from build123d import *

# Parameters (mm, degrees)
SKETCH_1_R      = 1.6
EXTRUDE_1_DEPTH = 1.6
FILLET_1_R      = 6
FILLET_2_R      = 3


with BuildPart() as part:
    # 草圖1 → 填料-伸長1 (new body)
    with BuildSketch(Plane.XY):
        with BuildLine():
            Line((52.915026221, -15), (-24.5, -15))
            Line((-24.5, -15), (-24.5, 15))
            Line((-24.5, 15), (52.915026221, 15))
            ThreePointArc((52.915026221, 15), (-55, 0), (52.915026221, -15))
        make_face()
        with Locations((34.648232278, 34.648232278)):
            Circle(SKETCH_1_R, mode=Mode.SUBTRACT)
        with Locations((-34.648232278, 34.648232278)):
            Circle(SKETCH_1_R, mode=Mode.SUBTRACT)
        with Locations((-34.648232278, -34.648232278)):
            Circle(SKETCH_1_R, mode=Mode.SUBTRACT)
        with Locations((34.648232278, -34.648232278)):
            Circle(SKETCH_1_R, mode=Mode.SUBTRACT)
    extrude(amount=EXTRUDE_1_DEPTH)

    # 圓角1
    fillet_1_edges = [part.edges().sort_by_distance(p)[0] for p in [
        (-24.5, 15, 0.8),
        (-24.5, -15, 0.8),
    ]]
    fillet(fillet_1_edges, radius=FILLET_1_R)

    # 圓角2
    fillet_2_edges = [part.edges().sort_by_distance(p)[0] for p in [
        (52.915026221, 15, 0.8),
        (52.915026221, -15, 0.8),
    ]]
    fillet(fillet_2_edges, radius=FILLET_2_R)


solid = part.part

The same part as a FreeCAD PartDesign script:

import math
import FreeCAD as App
import Part
import Sketcher

V = App.Vector
Q = App.Units.Quantity


def edges_at(feature, points):
    """Names of the edges that pass closest to the given points."""
    edges = feature.Shape.Edges
    near = lambda p: min(range(len(edges)), key=lambda i: edges[i].distToShape(Part.Vertex(*p))[0])
    return sorted({f"Edge{near(p) + 1}" for p in points})

doc = App.newDocument("Part")
body = doc.addObject("PartDesign::Body", "Body")

# Sketch on XY plane
sketch1 = body.newObject("Sketcher::SketchObject", "Sketch")
sketch1.AttachmentSupport = (doc.getObject("XY_Plane"), [""])
sketch1.MapMode = "FlatFace"
sketch1.addGeometry([
    Part.LineSegment(V(52.915026, -15, 0), V(-24.5, -15, 0)),  # 0
    Part.LineSegment(V(-24.5, -15, 0), V(-24.5, 15, 0)),  # 1
    Part.LineSegment(V(-24.5, 15, 0), V(52.915026, 15, 0)),  # 2
    Part.ArcOfCircle(Part.Circle(V(0, 0, 0), V(0, 0, 1), 55), math.radians(15.82662), math.radians(344.17338)),  # 3
    Part.Circle(V(-34.648232, -34.648232, 0), V(0, 0, 1), 1.6),  # 4
    Part.Circle(V(34.648232, -34.648232, 0), V(0, 0, 1), 1.6),  # 5
    Part.Circle(V(-34.648232, 34.648232, 0), V(0, 0, 1), 1.6),  # 6
    Part.Circle(V(34.648232, 34.648232, 0), V(0, 0, 1), 1.6),  # 7
], False)
sketch1.addConstraint([
    Sketcher.Constraint("Coincident", 0, 2, 1, 1),
    Sketcher.Constraint("Coincident", 1, 2, 2, 1),
    Sketcher.Constraint("Coincident", 2, 2, 3, 1),
    Sketcher.Constraint("Coincident", 3, 2, 0, 1),
    Sketcher.Constraint("Horizontal", 0),
    Sketcher.Constraint("Vertical", 1),
    Sketcher.Constraint("Horizontal", 2),
    Sketcher.Constraint("Coincident", 3, 3, -1, 1),
    Sketcher.Constraint("Equal", 4, 5),
    Sketcher.Constraint("Equal", 5, 6),
    Sketcher.Constraint("Equal", 6, 7),
    Sketcher.Constraint("Symmetric", 5, 3, 6, 3, -1, 1),
    Sketcher.Constraint("Symmetric", 4, 3, 7, 3, -1, 1),
    Sketcher.Constraint("Symmetric", 4, 3, 5, 3, -2),
    Sketcher.Constraint("Vertical", 2, 2, 3, 2),
    Sketcher.Constraint("Radius", 3, Q("55 mm")),
    Sketcher.Constraint("Diameter", 4, Q("3.2 mm")),
    Sketcher.Constraint("DistanceY", 1, 1, 1, 2, Q("30 mm")),
    Sketcher.Constraint("DistanceX", 0, 2, -1, 1, Q("24.5 mm")),
    Sketcher.Constraint("DistanceX", 4, 3, -1, 1, Q("34.648232 mm")),
    Sketcher.Constraint("DistanceY", 4, 3, -1, 1, Q("34.648232 mm")),
])
pad1 = body.newObject("PartDesign::Pad", "Pad")
pad1.Profile = sketch1
pad1.Length = 1.6
doc.recompute()

fillet = body.newObject("PartDesign::Fillet", "Fillet")
fillet.Base = (pad1, edges_at(pad1, [(-24.5, 15, 0.8), (-24.5, -15, 0.8)]))
fillet.Radius = 6
doc.recompute()

fillet2 = body.newObject("PartDesign::Fillet", "Fillet001")
fillet2.Base = (fillet, edges_at(fillet, [(52.915, 15, 0.8), (52.915, -15, 0.8)]))
fillet2.Radius = 3

doc.recompute()
